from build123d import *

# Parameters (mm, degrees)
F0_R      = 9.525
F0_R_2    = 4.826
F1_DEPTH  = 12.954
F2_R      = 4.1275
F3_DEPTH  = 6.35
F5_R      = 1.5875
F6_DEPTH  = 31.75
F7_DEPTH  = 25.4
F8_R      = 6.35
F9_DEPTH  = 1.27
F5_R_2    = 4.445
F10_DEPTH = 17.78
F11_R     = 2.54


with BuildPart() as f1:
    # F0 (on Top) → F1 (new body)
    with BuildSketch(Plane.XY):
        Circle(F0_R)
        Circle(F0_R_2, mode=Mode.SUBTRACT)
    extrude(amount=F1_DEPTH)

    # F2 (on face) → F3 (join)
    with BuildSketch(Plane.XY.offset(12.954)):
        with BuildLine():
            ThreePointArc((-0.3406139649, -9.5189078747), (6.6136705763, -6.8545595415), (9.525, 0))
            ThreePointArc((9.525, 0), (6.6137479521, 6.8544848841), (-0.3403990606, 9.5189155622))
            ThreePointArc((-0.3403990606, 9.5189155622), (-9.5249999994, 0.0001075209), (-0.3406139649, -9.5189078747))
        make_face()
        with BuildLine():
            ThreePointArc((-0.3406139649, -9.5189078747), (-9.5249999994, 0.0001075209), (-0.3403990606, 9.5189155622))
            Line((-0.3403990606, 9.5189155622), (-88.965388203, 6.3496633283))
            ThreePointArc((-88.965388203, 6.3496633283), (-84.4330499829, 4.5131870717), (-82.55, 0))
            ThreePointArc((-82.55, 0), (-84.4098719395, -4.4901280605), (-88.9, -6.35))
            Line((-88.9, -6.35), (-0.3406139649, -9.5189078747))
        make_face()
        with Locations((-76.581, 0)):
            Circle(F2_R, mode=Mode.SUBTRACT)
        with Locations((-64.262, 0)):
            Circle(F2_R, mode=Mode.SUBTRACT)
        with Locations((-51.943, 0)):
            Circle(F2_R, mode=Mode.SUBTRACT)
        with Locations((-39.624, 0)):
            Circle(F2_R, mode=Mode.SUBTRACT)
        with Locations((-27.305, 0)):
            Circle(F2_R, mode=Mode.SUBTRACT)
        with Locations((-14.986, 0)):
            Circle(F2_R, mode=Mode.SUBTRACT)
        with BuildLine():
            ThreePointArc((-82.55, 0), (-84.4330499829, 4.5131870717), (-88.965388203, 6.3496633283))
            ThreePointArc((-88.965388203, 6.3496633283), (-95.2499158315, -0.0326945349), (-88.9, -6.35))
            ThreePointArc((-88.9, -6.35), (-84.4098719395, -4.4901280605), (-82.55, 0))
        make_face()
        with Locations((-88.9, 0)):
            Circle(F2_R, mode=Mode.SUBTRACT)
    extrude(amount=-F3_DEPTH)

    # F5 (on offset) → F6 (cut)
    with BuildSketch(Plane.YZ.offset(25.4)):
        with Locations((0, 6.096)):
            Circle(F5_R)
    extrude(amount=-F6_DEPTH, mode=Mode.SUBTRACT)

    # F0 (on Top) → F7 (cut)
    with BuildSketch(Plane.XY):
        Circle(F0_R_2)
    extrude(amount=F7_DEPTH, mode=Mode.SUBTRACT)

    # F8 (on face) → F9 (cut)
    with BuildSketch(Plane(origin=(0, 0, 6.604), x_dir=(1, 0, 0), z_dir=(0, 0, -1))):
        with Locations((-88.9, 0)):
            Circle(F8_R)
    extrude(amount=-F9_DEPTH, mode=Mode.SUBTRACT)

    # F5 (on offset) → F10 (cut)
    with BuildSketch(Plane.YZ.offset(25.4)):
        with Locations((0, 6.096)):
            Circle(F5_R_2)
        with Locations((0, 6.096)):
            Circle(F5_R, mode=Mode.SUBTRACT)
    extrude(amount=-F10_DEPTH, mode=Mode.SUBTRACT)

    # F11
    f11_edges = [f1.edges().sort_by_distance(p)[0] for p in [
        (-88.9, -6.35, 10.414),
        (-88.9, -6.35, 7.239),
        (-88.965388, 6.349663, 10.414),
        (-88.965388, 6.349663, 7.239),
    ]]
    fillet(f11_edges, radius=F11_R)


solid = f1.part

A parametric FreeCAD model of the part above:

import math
import FreeCAD as App
import Part
import Sketcher
from FreeCAD import Vector
Q = App.Units.Quantity


def edges_at(feature, points):
    """Names of the edges that pass closest to the given points."""
    edges = feature.Shape.Edges
    near = lambda p: min(range(len(edges)), key=lambda i: edges[i].distToShape(Part.Vertex(*p))[0])
    return sorted({f"Edge{near(p) + 1}" for p in points})

doc = App.newDocument("Part")
params = doc.addObject("Spreadsheet::Sheet", "Params")
for row, (alias, value) in enumerate([
    ("sketch1_diameter", "0.75 in"),
    ("sketch1_diameter2", "0.38 in"),
    ("pad1_length", "0.51 in"),
    ("sketch2_radius", "0.25 in"),
    ("sketch2_diameter", "0.325 in"),
    ("sketch2_radius2", "0.375 in"),
    ("pad2_length", "0.25 in"),
    ("sketch3_diameter", "0.125 in"),
    ("pocket1_length", "1.25 in"),
    ("sketch4_diameter", "0.38 in"),
    ("pocket2_length", "1 in"),
    ("sketch5_diameter", "0.5 in"),
    ("pocket3_length", "0.05 in"),
    ("sketch6_diameter", "0.35 in"),
    ("sketch6_diameter2", "0.125 in"),
    ("pocket4_length", "0.7 in"),
    ("fillet_radius", "0.1 in"),
], start=1):
    params.set(f"A{row}", alias)
    params.set(f"B{row}", "=" + value)
    params.setAlias(f"B{row}", alias)

body = doc.addObject("PartDesign::Body", "Body")

sketch1 = doc.addObject("Sketcher::SketchObject", "Sketch")
body.addObject(sketch1)
sketch1.AttachmentSupport = (doc.XY_Plane, [""])
sketch1.MapMode = "FlatFace"
sketch1.addGeometry([
    Part.Circle(Vector(0, 0, 0), Vector(0, 0, 1), 9.5),
    Part.Circle(Vector(0, 0, 0), Vector(0, 0, 1), 4.8),
], False)
sketch1.addConstraint([
    Sketcher.Constraint("Coincident", 0, 3, -1, 1),
    Sketcher.Constraint("Coincident", 1, 3, -1, 1),
    Sketcher.Constraint("Diameter", 0, Q("0.75 in")),
    Sketcher.Constraint("Diameter", 1, Q("0.38 in")),
])
sketch1.setExpression("Constraints[2]", "Params.sketch1_diameter")
sketch1.setExpression("Constraints[3]", "Params.sketch1_diameter2")
pad1 = doc.addObject("PartDesign::Pad", "Pad")
body.addObject(pad1)
pad1.Profile = sketch1
pad1.setExpression("Length", "Params.pad1_length")

sketch2 = doc.addObject("Sketcher::SketchObject", "Sketch001")
body.addObject(sketch2)
sketch2.AttachmentSupport = (doc.XY_Plane, [""])
sketch2.MapMode = "FlatFace"
sketch2.AttachmentOffset = App.Placement(Vector(0, 0, 0.51 * 25.4), App.Rotation())
sketch2.addGeometry([
    Part.ArcOfCircle(Part.Circle(Vector(0, 0, 0), Vector(0, 0, 1), 9.5), math.radians(-92), math.radians(0)),
    Part.ArcOfCircle(Part.Circle(Vector(0, 0, 0), Vector(0, 0, 1), 9.5), math.radians(0), math.radians(92)),
    Part.LineSegment(Vector(-0.3, 9.5, 0), Vector(-89, 6.3, 0)),
    Part.ArcOfCircle(Part.Circle(Vector(-88.9, 0, 0), Vector(0, 0, 1), 6.3), math.radians(91), math.radians(270)),
    Part.LineSegment(Vector(-88.9, -6.3, 0), Vector(-0.3, -9.5, 0)),
    Part.Circle(Vector(-88.9, 0, 0), Vector(0, 0, 1), 4.1),
    Part.Circle(Vector(-76.6, 0, 0), Vector(0, 0, 1), 4.1),
    Part.Circle(Vector(-64.3, 0, 0), Vector(0, 0, 1), 4.1),
    Part.Circle(Vector(-51.9, 0, 0), Vector(0, 0, 1), 4.1),
    Part.Circle(Vector(-39.6, 0, 0), Vector(0, 0, 1), 4.1),
    Part.Circle(Vector(-27.3, 0, 0), Vector(0, 0, 1), 4.1),
    Part.Circle(Vector(-15, 0, 0), Vector(0, 0, 1), 4.1),
], False)
sketch2.addConstraint([
    Sketcher.Constraint("Tangent", 0, 2, 1, 1),
    Sketcher.Constraint("Tangent", 1, 2, 2, 1),
    Sketcher.Constraint("Coincident", 2, 2, 3, 1),
    Sketcher.Constraint("Coincident", 3, 2, 4, 1),
    Sketcher.Constraint("Tangent", 4, 2, 0, 1),
    Sketcher.Constraint("Coincident", 0, 3, -1, 1),
    Sketcher.Constraint("Coincident", 5, 3, 3, 3),
    Sketcher.Constraint("Equal", 0, 1),
    Sketcher.Constraint("Equal", 5, 6),
    Sketcher.Constraint("Equal", 6, 7),
    Sketcher.Constraint("Equal", 7, 8),
    Sketcher.Constraint("Equal", 8, 9),
    Sketcher.Constraint("Equal", 9, 10),
    Sketcher.Constraint("Equal", 10, 11),
    Sketcher.Constraint("PointOnObject", 3, 3, -1),
    Sketcher.Constraint("PointOnObject", 6, 3, -1),
    Sketcher.Constraint("PointOnObject", 7, 3, -1),
    Sketcher.Constraint("PointOnObject", 8, 3, -1),
    Sketcher.Constraint("PointOnObject", 9, 3, -1),
    Sketcher.Constraint("PointOnObject", 10, 3, -1),
    Sketcher.Constraint("PointOnObject", 11, 3, -1),
    Sketcher.Constraint("PointOnObject", 0, 2, -1),
    Sketcher.Constraint("Vertical", 5, 3, 3, 2),
    Sketcher.Constraint("Radius", 3, Q("0.25 in")),
    Sketcher.Constraint("Diameter", 5, Q("0.325 in")),
    Sketcher.Constraint("Radius", 0, Q("0.375 in")),
    Sketcher.Constraint("DistanceX", 3, 3, -1, 1, Q("3.5 in")),
    Sketcher.Constraint("DistanceX", 7, 3, -1, 1, Q("2.53 in")),
    Sketcher.Constraint("DistanceX", 9, 3, -1, 1, Q("1.56 in")),
    Sketcher.Constraint("DistanceX", 11, 3, -1, 1, Q("0.59 in")),
    Sketcher.Constraint("DistanceX", 6, 3, 8, 3, Q("0.97 in")),
    Sketcher.Constraint("DistanceX", 8, 3, 10, 3, Q("0.97 in")),
    Sketcher.Constraint("DistanceX", 10, 3, 0, 2, Q("1.45 in")),
    Sketcher.Constraint("DistanceX", 2, 2, -1, 1, 88.965388),
])
sketch2.setExpression("Constraints[23]", "Params.sketch2_radius")
sketch2.setExpression("Constraints[24]", "Params.sketch2_diameter")
sketch2.setExpression("Constraints[25]", "Params.sketch2_radius2")
pad2 = doc.addObject("PartDesign::Pad", "Pad001")
body.addObject(pad2)
pad2.Profile = sketch2
pad2.setExpression("Length", "Params.pad2_length")
pad2.Reversed = True

sketch3 = doc.addObject("Sketcher::SketchObject", "Sketch002")
body.addObject(sketch3)
sketch3.AttachmentSupport = (doc.YZ_Plane, [""])
sketch3.MapMode = "FlatFace"
sketch3.AttachmentOffset = App.Placement(Vector(0, 0, 1 * 25.4), App.Rotation())
sketch3.addGeometry(Part.Circle(Vector(0, 6.1, 0), Vector(0, 0, 1), 1.6), False)
sketch3.addConstraint([
    Sketcher.Constraint("PointOnObject", 0, 3, -2),
    Sketcher.Constraint("Diameter", 0, Q("0.125 in")),
    Sketcher.Constraint("DistanceY", -1, 1, 0, 3, Q("0.24 in")),
])
sketch3.setExpression("Constraints[1]", "Params.sketch3_diameter")
pocket1 = doc.addObject("PartDesign::Pocket", "Pocket")
body.addObject(pocket1)
pocket1.Profile = sketch3
pocket1.setExpression("Length", "Params.pocket1_length")

sketch4 = doc.addObject("Sketcher::SketchObject", "Sketch003")
body.addObject(sketch4)
sketch4.AttachmentSupport = (doc.XY_Plane, [""])
sketch4.MapMode = "FlatFace"
sketch4.addGeometry(Part.Circle(Vector(0, 0, 0), Vector(0, 0, 1), 4.8), False)
sketch4.addConstraint([
    Sketcher.Constraint("Coincident", 0, 3, -1, 1),
    Sketcher.Constraint("Diameter", 0, Q("0.38 in")),
])
sketch4.setExpression("Constraints[1]", "Params.sketch4_diameter")
pocket2 = doc.addObject("PartDesign::Pocket", "Pocket001")
body.addObject(pocket2)
pocket2.Profile = sketch4
pocket2.setExpression("Length", "Params.pocket2_length")
pocket2.Reversed = True

sketch5 = doc.addObject("Sketcher::SketchObject", "Sketch004")
body.addObject(sketch5)
sketch5.AttachmentSupport = (doc.XY_Plane, [""])
sketch5.MapMode = "FlatFace"
sketch5.AttachmentOffset = App.Placement(Vector(0, 0, 0.26 * 25.4), App.Rotation())
sketch5.addGeometry(Part.Circle(Vector(-89, 0, 0), Vector(0, 0, 1), 6), False)
sketch5.addConstraint([
    Sketcher.Constraint("PointOnObject", 0, 3, -1),
    Sketcher.Constraint("Diameter", 0, Q("0.5 in")),
    Sketcher.Constraint("DistanceX", 0, 3, -1, 1, Q("3.5 in")),
])
sketch5.setExpression("Constraints[1]", "Params.sketch5_diameter")
pocket3 = doc.addObject("PartDesign::Pocket", "Pocket002")
body.addObject(pocket3)
pocket3.Profile = sketch5
pocket3.setExpression("Length", "Params.pocket3_length")
pocket3.Reversed = True

sketch6 = doc.addObject("Sketcher::SketchObject", "Sketch005")
body.addObject(sketch6)
sketch6.AttachmentSupport = (doc.YZ_Plane, [""])
sketch6.MapMode = "FlatFace"
sketch6.AttachmentOffset = App.Placement(Vector(0, 0, 1 * 25.4), App.Rotation())
sketch6.addGeometry([
    Part.Circle(Vector(0, 6.1, 0), Vector(0, 0, 1), 4.4),
    Part.Circle(Vector(0, 6.1, 0), Vector(0, 0, 1), 1.6),
], False)
sketch6.addConstraint([
    Sketcher.Constraint("Coincident", 1, 3, 0, 3),
    Sketcher.Constraint("PointOnObject", 0, 3, -2),
    Sketcher.Constraint("Diameter", 0, Q("0.35 in")),
    Sketcher.Constraint("Diameter", 1, Q("0.125 in")),
    Sketcher.Constraint("DistanceY", -1, 1, 0, 3, Q("0.24 in")),
])
sketch6.setExpression("Constraints[2]", "Params.sketch6_diameter")
sketch6.setExpression("Constraints[3]", "Params.sketch6_diameter2")
pocket4 = doc.addObject("PartDesign::Pocket", "Pocket003")
body.addObject(pocket4)
pocket4.Profile = sketch6
pocket4.setExpression("Length", "Params.pocket4_length")
doc.recompute()

fillet = doc.addObject("PartDesign::Fillet", "Fillet")
body.addObject(fillet)
fillet.Base = (pocket4, edges_at(pocket4, [
    (-88.9, -6.35, 10.414),
    (-88.9, -6.35, 7.239),
    (-88.965, 6.35, 10.414),
    (-88.965, 6.35, 7.239),
]))
fillet.setExpression("Radius", "Params.fillet_radius")

doc.recompute()
